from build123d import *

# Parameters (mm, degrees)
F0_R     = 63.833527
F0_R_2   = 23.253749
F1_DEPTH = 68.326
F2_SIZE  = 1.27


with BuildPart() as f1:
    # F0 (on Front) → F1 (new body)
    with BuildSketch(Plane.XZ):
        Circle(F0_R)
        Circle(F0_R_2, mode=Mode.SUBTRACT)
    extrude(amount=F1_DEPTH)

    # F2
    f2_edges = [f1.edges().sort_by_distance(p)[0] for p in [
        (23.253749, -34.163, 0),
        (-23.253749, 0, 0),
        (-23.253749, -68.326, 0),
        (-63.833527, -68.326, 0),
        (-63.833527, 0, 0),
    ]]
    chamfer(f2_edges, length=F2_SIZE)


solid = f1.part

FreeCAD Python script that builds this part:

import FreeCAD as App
import Part
import Sketcher

V = App.Vector
Q = App.Units.Quantity

doc = App.newDocument("Part")
params = doc.addObject("Spreadsheet::Sheet", "Params")
for row, (alias, value) in enumerate([
    ("pad1_length", "2.69 in"),
    ("chamfer_size", "0.05 in"),
], start=1):
    params.set(f"A{row}", alias)
    params.set(f"B{row}", "=" + value)
    params.setAlias(f"B{row}", alias)

body = doc.addObject("PartDesign::Body", "Body")

# Sketch on XZ plane
sketch1 = body.newObject("Sketcher::SketchObject", "Sketch")
sketch1.AttachmentSupport = (doc.getObject("XZ_Plane"), [""])
sketch1.MapMode = "FlatFace"
sketch1.addGeometry([
    Part.Circle(V(0, 0, 0), V(0, 0, 1), 64),
    Part.Circle(V(0, 0, 0), V(0, 0, 1), 23),
], False)
sketch1.addConstraint([
    Sketcher.Constraint("Coincident", 0, 3, -1, 1),
    Sketcher.Constraint("Coincident", 1, 3, -1, 1),
    Sketcher.Constraint("Diameter", 0, Q("127.667054 mm")),
    Sketcher.Constraint("Diameter", 1, Q("46.507498 mm")),
])
pad1 = body.newObject("PartDesign::Pad", "Pad")
pad1.Profile = sketch1
pad1.setExpression("Length", "Params.pad1_length")
doc.recompute()

chamfer = body.newObject("PartDesign::Chamfer", "Chamfer")
chamfer.Base = (pad1, ["Edge1"])
chamfer.UseAllEdges = True
chamfer.setExpression("Size", "Params.chamfer_size")

doc.recompute()
